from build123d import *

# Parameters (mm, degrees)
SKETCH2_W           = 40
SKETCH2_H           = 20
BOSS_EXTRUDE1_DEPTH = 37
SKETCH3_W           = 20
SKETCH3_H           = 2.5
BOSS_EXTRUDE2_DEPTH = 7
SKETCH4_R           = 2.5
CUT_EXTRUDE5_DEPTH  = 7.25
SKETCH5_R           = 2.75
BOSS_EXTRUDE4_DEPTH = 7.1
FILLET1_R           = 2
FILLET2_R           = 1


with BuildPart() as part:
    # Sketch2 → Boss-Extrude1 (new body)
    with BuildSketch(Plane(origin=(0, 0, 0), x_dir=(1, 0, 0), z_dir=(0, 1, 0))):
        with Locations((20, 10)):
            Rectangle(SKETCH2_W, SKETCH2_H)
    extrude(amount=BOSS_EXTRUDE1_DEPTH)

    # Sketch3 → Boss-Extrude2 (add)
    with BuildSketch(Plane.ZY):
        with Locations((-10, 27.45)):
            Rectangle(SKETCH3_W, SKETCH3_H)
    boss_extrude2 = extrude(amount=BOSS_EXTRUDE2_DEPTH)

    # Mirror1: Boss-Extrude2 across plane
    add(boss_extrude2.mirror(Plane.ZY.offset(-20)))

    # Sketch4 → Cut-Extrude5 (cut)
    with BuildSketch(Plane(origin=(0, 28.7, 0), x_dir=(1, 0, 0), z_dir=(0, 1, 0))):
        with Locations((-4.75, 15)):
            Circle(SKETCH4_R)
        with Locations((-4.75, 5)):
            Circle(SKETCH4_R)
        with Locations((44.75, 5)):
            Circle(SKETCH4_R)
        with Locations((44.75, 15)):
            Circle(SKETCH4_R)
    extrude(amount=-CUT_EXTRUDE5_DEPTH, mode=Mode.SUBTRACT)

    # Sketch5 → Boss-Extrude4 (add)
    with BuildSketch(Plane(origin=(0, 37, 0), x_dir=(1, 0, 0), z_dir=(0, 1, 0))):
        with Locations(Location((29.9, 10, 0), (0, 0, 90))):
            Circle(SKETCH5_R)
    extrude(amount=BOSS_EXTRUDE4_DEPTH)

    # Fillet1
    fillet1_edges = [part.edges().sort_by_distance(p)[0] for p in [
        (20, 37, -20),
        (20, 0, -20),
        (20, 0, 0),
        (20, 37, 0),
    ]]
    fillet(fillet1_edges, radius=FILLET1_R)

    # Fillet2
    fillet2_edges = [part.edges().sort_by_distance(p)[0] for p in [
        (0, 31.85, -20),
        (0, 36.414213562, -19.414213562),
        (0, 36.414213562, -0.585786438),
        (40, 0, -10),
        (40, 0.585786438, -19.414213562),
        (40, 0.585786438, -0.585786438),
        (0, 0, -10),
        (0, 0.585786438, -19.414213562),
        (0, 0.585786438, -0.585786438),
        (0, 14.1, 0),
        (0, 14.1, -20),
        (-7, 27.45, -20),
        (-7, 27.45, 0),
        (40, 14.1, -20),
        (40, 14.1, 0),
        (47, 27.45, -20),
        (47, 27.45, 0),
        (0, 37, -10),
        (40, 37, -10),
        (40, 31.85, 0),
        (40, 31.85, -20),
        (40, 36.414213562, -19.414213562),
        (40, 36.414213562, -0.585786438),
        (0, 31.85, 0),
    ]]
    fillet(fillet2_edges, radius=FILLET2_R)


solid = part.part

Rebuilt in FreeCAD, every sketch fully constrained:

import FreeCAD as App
import Part
import Sketcher
Q = App.Units.Quantity


def edges_at(feature, points):
    """Names of the edges that pass closest to the given points."""
    edges = feature.Shape.Edges
    near = lambda p: min(range(len(edges)), key=lambda i: edges[i].distToShape(Part.Vertex(*p))[0])
    return sorted({f"Edge{near(p) + 1}" for p in points})


def add_polygon(sketch, points):
    """Adds a closed chain of lines whose ends are joined by coincident constraints."""
    first, n = sketch.GeometryCount, len(points)
    for a, b in zip(points, points[1:] + points[:1]):
        sketch.addGeometry(Part.LineSegment(App.Vector(*a, 0), App.Vector(*b, 0)), False)
    for i in range(n):
        sketch.addConstraint(Sketcher.Constraint("Coincident", first + i, 2, first + (i + 1) % n, 1))

doc = App.newDocument("Part")
body = doc.addObject("PartDesign::Body", "Body")

sketch1 = body.newObject("Sketcher::SketchObject", "Sketch")
sketch1.AttachmentSupport = (doc.getObject("XZ_Plane"), [""])
sketch1.MapMode = "FlatFace"
add_polygon(sketch1, [(0, -20), (0, 0), (40, 0), (40, -20)])
sketch1.addConstraint([
    Sketcher.Constraint("Vertical", 0),
    Sketcher.Constraint("Horizontal", 1),
    Sketcher.Constraint("Vertical", 2),
    Sketcher.Constraint("Horizontal", 3),
    Sketcher.Constraint("Coincident", 0, 2, -1, 1),
    Sketcher.Constraint("DistanceX", 1, 1, 1, 2, Q("40 mm")),
    Sketcher.Constraint("DistanceY", 0, 1, 0, 2, Q("20 mm")),
])
pad1 = body.newObject("PartDesign::Pad", "Pad")
pad1.Profile = sketch1
pad1.Length = 37
pad1.Reversed = True

sketch2 = body.newObject("Sketcher::SketchObject", "Sketch001")
sketch2.AttachmentSupport = (doc.getObject("YZ_Plane"), [""])
sketch2.MapMode = "FlatFace"
add_polygon(sketch2, [(28.7, -20), (26.2, -20), (26.2, 0), (28.7, 0)])
sketch2.addConstraint([
    Sketcher.Constraint("Horizontal", 0),
    Sketcher.Constraint("Vertical", 1),
    Sketcher.Constraint("Horizontal", 2),
    Sketcher.Constraint("Vertical", 3),
    Sketcher.Constraint("PointOnObject", 1, 2, -1),
    Sketcher.Constraint("DistanceY", 1, 1, 1, 2, Q("20 mm")),
    Sketcher.Constraint("DistanceX", 0, 2, 0, 1, Q("2.5 mm")),
    Sketcher.Constraint("DistanceX", -1, 1, 0, 2, Q("26.2 mm")),
])
pad2 = body.newObject("PartDesign::Pad", "Pad001")
pad2.Profile = sketch2
pad2.Length = 7
pad2.Reversed = True
doc.recompute()

datumplane = body.newObject("PartDesign::Plane", "DatumPlane")
datumplane.AttachmentSupport = (doc.getObject("YZ_Plane"), [""])
datumplane.MapMode = "FlatFace"
datumplane.AttachmentOffset = App.Placement(App.Vector(0, 0, 20), App.Rotation())
mirrored = body.newObject("PartDesign::Mirrored", "Mirrored")
mirrored.Originals = [pad2]
mirrored.MirrorPlane = (datumplane, [""])
body.Tip = mirrored

sketch3 = body.newObject("Sketcher::SketchObject", "Sketch002")
sketch3.AttachmentSupport = (doc.getObject("XZ_Plane"), [""])
sketch3.MapMode = "FlatFace"
sketch3.AttachmentOffset = App.Placement(App.Vector(0, 0, -28.7), App.Rotation())
sketch3.addGeometry([
    Part.Circle(App.Vector(-4.8, -15, 0), App.Vector(0, 0, 1), 2.5),
    Part.Circle(App.Vector(-4.8, -5, 0), App.Vector(0, 0, 1), 2.5),
    Part.Circle(App.Vector(44.8, -5, 0), App.Vector(0, 0, 1), 2.5),
    Part.Circle(App.Vector(44.8, -15, 0), App.Vector(0, 0, 1), 2.5),
], False)
sketch3.addConstraint([
    Sketcher.Constraint("Equal", 0, 1),
    Sketcher.Constraint("Equal", 1, 2),
    Sketcher.Constraint("Equal", 2, 3),
    Sketcher.Constraint("Horizontal", 1, 3, 2, 3),
    Sketcher.Constraint("Horizontal", 0, 3, 3, 3),
    Sketcher.Constraint("Vertical", 0, 3, 1, 3),
    Sketcher.Constraint("Vertical", 2, 3, 3, 3),
    Sketcher.Constraint("Diameter", 0, Q("5 mm")),
    Sketcher.Constraint("DistanceY", 0, 3, -1, 1, Q("15 mm")),
    Sketcher.Constraint("DistanceY", 1, 3, -1, 1, Q("5 mm")),
    Sketcher.Constraint("DistanceX", 1, 3, 2, 3, Q("49.5 mm")),
    Sketcher.Constraint("DistanceX", 0, 3, -1, 1, Q("4.75 mm")),
])
pocket1 = body.newObject("PartDesign::Pocket", "Pocket")
pocket1.Profile = sketch3
pocket1.Length = 7.25
pocket1.Reversed = True

sketch4 = body.newObject("Sketcher::SketchObject", "Sketch003")
sketch4.AttachmentSupport = (doc.getObject("XZ_Plane"), [""])
sketch4.MapMode = "FlatFace"
sketch4.AttachmentOffset = App.Placement(App.Vector(0, 0, -37), App.Rotation())
sketch4.addGeometry(Part.Circle(App.Vector(29.9, -10, 0), App.Vector(0, 0, 1), 2.8), False)
sketch4.addConstraint([
    Sketcher.Constraint("Diameter", 0, Q("5.5 mm")),
    Sketcher.Constraint("DistanceY", 0, 3, -1, 1, Q("10 mm")),
    Sketcher.Constraint("DistanceX", -1, 1, 0, 3, Q("29.9 mm")),
])
pad3 = body.newObject("PartDesign::Pad", "Pad002")
pad3.Profile = sketch4
pad3.Length = 7.1
pad3.Reversed = True
doc.recompute()

fillet = body.newObject("PartDesign::Fillet", "Fillet")
fillet.Base = (pad3, edges_at(pad3, [
    (20, 37, -20),
    (20, 0, -20),
    (20, 0, 0),
    (20, 37, 0),
]))
fillet.Radius = 2
doc.recompute()

fillet2 = body.newObject("PartDesign::Fillet", "Fillet001")
fillet2.Base = (fillet, edges_at(fillet, [
    (0, 31.85, -20),
    (0, 36.414, -19.414),
    (0, 36.414, -0.586),
    (40, 0, -10),
    (40, 0.586, -19.414),
    (40, 0.586, -0.586),
    (0, 0, -10),
    (0, 0.586, -19.414),
    (0, 0.586, -0.586),
    (0, 14.1, 0),
    (0, 14.1, -20),
    (-7, 27.45, -20),
    (-7, 27.45, 0),
    (40, 14.1, -20),
    (40, 14.1, 0),
    (47, 27.45, -20),
    (47, 27.45, 0),
    (0, 37, -10),
    (40, 37, -10),
    (40, 31.85, 0),
    (40, 31.85, -20),
    (40, 36.414, -19.414),
    (40, 36.414, -0.586),
    (0, 31.85, 0),
]))
fillet2.Radius = 1

doc.recompute()
